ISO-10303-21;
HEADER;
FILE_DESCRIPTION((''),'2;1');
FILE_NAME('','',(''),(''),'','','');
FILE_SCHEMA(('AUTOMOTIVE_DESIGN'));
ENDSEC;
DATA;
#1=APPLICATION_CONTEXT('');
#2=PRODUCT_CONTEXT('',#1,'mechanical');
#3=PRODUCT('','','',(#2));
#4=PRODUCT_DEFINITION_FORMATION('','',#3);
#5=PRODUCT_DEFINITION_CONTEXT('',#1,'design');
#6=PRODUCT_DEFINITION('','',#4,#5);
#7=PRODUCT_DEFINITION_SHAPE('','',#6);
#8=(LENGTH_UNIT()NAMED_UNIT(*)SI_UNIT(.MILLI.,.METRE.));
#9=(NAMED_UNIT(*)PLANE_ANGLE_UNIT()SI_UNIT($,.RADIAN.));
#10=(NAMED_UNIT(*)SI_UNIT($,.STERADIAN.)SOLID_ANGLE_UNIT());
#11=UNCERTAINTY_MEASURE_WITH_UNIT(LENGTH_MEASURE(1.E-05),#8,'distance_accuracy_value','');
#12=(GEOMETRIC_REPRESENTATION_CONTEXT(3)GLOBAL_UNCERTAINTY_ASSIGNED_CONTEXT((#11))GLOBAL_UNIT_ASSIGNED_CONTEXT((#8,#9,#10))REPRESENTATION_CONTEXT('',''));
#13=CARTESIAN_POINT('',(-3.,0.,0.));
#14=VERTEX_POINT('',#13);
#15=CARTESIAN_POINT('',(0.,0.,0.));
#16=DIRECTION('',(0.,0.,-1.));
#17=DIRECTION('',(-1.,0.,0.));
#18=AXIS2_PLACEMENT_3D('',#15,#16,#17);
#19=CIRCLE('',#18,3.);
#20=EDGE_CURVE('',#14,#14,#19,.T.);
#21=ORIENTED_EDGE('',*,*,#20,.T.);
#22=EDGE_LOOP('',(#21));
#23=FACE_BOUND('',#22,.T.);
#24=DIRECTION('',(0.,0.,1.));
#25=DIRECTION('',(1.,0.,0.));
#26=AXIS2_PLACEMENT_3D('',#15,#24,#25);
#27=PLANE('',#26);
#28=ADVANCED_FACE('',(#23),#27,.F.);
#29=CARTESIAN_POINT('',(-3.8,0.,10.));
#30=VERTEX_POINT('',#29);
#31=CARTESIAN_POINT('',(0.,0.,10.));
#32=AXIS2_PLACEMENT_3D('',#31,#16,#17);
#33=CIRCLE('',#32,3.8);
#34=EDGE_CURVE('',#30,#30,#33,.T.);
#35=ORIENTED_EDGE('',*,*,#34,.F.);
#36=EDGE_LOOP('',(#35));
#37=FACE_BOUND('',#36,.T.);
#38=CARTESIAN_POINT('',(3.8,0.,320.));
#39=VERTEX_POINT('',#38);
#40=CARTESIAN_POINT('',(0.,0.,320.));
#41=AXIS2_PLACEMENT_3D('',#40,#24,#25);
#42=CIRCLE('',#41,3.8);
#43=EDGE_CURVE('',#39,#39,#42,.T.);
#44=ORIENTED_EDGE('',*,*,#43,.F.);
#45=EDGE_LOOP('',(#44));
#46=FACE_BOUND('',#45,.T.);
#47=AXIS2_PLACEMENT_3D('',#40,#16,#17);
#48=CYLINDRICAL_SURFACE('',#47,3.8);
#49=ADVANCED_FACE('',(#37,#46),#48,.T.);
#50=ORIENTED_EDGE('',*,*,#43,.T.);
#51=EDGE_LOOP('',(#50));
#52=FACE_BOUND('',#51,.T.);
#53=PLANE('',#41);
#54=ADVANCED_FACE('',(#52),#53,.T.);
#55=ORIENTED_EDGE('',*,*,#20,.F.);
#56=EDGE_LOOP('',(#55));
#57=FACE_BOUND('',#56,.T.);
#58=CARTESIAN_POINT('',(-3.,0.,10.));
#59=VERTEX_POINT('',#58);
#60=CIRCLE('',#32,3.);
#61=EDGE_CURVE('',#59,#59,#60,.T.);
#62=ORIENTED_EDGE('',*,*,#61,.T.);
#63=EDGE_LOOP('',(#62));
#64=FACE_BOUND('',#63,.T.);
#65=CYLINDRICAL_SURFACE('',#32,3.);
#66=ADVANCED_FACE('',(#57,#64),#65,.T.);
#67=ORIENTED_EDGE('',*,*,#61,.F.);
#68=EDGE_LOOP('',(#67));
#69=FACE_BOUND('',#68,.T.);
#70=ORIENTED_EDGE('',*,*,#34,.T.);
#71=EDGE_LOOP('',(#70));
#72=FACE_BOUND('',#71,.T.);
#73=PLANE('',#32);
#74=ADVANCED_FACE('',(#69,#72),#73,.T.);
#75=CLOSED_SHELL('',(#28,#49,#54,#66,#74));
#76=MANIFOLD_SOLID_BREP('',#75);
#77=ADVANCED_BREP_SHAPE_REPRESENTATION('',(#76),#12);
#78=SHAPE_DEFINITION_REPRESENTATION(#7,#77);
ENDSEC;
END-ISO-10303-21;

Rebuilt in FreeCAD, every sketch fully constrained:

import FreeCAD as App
import Part
import Sketcher
from FreeCAD import Vector

doc = App.newDocument("Part")
body = doc.addObject("PartDesign::Body", "Body")

# Sketch on XY plane
sketch1 = doc.addObject("Sketcher::SketchObject", "Sketch")
body.addObject(sketch1)
sketch1.AttachmentSupport = (doc.XY_Plane, [""])
sketch1.MapMode = "FlatFace"
sketch1.addGeometry(Part.Circle(Vector(0, 0, 0), Vector(0, 0, 1), 3.8), False)
sketch1.addConstraint([
    Sketcher.Constraint("Coincident", 0, 3, -1, 1),
    Sketcher.Constraint("Diameter", 0, 7.6),
])
pad1 = doc.addObject("PartDesign::Pad", "Pad")
body.addObject(pad1)
pad1.Profile = sketch1
pad1.Length = 320

# Sketch on XY plane
sketch2 = doc.addObject("Sketcher::SketchObject", "Sketch001")
body.addObject(sketch2)
sketch2.AttachmentSupport = (doc.XY_Plane, [""])
sketch2.MapMode = "FlatFace"
sketch2.addGeometry([
    Part.LineSegment(Vector(36.818, 36.818, 0), Vector(36.818, -36.818, 0)),  # 0
    Part.LineSegment(Vector(36.818, -36.818, 0), Vector(-36.818, -36.818, 0)),  # 1
    Part.LineSegment(Vector(-36.818, -36.818, 0), Vector(-36.818, 36.818, 0)),  # 2
    Part.LineSegment(Vector(-36.818, 36.818, 0), Vector(36.818, 36.818, 0)),  # 3
    Part.Circle(Vector(0, 0, 0), Vector(0, 0, 1), 3),  # 4
], False)
sketch2.addConstraint([
    Sketcher.Constraint("Coincident", 0, 2, 1, 1),
    Sketcher.Constraint("Coincident", 1, 2, 2, 1),
    Sketcher.Constraint("Coincident", 2, 2, 3, 1),
    Sketcher.Constraint("Coincident", 3, 2, 0, 1),
    Sketcher.Constraint("Vertical", 0),
    Sketcher.Constraint("Horizontal", 1),
    Sketcher.Constraint("Vertical", 2),
    Sketcher.Constraint("Horizontal", 3),
    Sketcher.Constraint("Coincident", 4, 3, -1, 1),
    Sketcher.Constraint("Symmetric", 0, 2, 2, 2, -1, 1),
    Sketcher.Constraint("Equal", 3, 0),
    Sketcher.Constraint("Diameter", 4, 6.0),
    Sketcher.Constraint("DistanceX", 1, 2, 1, 1, 73.636),
])
pocket1 = doc.addObject("PartDesign::Pocket", "Pocket")
body.addObject(pocket1)
pocket1.Profile = sketch2
pocket1.Length = 10
pocket1.Reversed = True

doc.recompute()
